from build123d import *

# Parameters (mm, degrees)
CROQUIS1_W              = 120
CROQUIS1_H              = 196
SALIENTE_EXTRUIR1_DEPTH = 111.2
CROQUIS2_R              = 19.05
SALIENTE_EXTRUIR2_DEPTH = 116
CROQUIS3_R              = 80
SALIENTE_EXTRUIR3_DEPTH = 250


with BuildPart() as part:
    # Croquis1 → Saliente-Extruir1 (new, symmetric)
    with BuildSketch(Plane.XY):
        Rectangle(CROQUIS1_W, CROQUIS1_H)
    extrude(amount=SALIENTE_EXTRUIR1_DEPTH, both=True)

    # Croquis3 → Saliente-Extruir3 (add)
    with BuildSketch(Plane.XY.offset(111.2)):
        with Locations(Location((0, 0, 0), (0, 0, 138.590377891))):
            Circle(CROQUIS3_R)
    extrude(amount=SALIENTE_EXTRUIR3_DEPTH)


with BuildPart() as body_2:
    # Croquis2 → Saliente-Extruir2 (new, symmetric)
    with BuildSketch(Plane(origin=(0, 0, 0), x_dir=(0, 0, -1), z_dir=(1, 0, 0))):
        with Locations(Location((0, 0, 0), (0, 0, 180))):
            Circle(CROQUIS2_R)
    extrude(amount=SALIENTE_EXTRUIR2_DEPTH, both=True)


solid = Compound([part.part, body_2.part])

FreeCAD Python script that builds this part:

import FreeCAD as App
import Part
import Sketcher

V = App.Vector
Q = App.Units.Quantity


def add_polygon(sketch, points):
    """Adds a closed chain of lines whose ends are joined by coincident constraints."""
    first, n = sketch.GeometryCount, len(points)
    for a, b in zip(points, points[1:] + points[:1]):
        sketch.addGeometry(Part.LineSegment(App.Vector(*a, 0), App.Vector(*b, 0)), False)
    for i in range(n):
        sketch.addConstraint(Sketcher.Constraint("Coincident", first + i, 2, first + (i + 1) % n, 1))

doc = App.newDocument("Part")
body = doc.addObject("PartDesign::Body", "Body")

# Sketch on XY plane
sketch1 = body.newObject("Sketcher::SketchObject", "Sketch")
sketch1.AttachmentSupport = (doc.getObject("XY_Plane"), [""])
sketch1.MapMode = "FlatFace"
add_polygon(sketch1, [(-60, 98), (-60, -98), (60, -98), (60, 98)])  # lines 0-3
sketch1.addConstraint(Sketcher.Constraint("Vertical", 0))
sketch1.addConstraint(Sketcher.Constraint("Horizontal", 1))
sketch1.addConstraint(Sketcher.Constraint("Vertical", 2))
sketch1.addConstraint(Sketcher.Constraint("Horizontal", 3))
sketch1.addConstraint(Sketcher.Constraint("Symmetric", 0, 2, 2, 2, -1, 1))
sketch1.addConstraint(Sketcher.Constraint("DistanceX", 1, 1, 1, 2, Q("120 mm")))
sketch1.addConstraint(Sketcher.Constraint("DistanceY", 0, 2, 0, 1, Q("196 mm")))
pad1 = body.newObject("PartDesign::Pad", "Pad")
pad1.Profile = sketch1
pad1.Length = 222.4
pad1.Midplane = True

# Sketch on XY plane
sketch2 = body.newObject("Sketcher::SketchObject", "Sketch001")
sketch2.AttachmentSupport = (doc.getObject("XY_Plane"), [""])
sketch2.MapMode = "FlatFace"
sketch2.AttachmentOffset = App.Placement(V(0, 0, 111.2), App.Rotation())
sketch2.addGeometry(Part.Circle(V(0, 0, 0), V(0, 0, 1), 80), False)
sketch2.addConstraint(Sketcher.Constraint("Coincident", 0, 3, -1, 1))
sketch2.addConstraint(Sketcher.Constraint("Diameter", 0, Q("160 mm")))
pad2 = body.newObject("PartDesign::Pad", "Pad001")
pad2.Profile = sketch2
pad2.Length = 250
body2 = doc.addObject("PartDesign::Body", "Body001")

# Sketch on YZ plane
sketch3 = body2.newObject("Sketcher::SketchObject", "Sketch002")
sketch3.AttachmentSupport = (doc.getObject("YZ_Plane001"), [""])
sketch3.MapMode = "FlatFace"
sketch3.addGeometry(Part.Circle(V(0, 0, 0), V(0, 0, 1), 19), False)
sketch3.addConstraint(Sketcher.Constraint("Coincident", 0, 3, -1, 1))
sketch3.addConstraint(Sketcher.Constraint("Diameter", 0, Q("38.1 mm")))
pad3 = body2.newObject("PartDesign::Pad", "Pad002")
pad3.Profile = sketch3
pad3.Length = 232
pad3.Midplane = True

doc.recompute()
